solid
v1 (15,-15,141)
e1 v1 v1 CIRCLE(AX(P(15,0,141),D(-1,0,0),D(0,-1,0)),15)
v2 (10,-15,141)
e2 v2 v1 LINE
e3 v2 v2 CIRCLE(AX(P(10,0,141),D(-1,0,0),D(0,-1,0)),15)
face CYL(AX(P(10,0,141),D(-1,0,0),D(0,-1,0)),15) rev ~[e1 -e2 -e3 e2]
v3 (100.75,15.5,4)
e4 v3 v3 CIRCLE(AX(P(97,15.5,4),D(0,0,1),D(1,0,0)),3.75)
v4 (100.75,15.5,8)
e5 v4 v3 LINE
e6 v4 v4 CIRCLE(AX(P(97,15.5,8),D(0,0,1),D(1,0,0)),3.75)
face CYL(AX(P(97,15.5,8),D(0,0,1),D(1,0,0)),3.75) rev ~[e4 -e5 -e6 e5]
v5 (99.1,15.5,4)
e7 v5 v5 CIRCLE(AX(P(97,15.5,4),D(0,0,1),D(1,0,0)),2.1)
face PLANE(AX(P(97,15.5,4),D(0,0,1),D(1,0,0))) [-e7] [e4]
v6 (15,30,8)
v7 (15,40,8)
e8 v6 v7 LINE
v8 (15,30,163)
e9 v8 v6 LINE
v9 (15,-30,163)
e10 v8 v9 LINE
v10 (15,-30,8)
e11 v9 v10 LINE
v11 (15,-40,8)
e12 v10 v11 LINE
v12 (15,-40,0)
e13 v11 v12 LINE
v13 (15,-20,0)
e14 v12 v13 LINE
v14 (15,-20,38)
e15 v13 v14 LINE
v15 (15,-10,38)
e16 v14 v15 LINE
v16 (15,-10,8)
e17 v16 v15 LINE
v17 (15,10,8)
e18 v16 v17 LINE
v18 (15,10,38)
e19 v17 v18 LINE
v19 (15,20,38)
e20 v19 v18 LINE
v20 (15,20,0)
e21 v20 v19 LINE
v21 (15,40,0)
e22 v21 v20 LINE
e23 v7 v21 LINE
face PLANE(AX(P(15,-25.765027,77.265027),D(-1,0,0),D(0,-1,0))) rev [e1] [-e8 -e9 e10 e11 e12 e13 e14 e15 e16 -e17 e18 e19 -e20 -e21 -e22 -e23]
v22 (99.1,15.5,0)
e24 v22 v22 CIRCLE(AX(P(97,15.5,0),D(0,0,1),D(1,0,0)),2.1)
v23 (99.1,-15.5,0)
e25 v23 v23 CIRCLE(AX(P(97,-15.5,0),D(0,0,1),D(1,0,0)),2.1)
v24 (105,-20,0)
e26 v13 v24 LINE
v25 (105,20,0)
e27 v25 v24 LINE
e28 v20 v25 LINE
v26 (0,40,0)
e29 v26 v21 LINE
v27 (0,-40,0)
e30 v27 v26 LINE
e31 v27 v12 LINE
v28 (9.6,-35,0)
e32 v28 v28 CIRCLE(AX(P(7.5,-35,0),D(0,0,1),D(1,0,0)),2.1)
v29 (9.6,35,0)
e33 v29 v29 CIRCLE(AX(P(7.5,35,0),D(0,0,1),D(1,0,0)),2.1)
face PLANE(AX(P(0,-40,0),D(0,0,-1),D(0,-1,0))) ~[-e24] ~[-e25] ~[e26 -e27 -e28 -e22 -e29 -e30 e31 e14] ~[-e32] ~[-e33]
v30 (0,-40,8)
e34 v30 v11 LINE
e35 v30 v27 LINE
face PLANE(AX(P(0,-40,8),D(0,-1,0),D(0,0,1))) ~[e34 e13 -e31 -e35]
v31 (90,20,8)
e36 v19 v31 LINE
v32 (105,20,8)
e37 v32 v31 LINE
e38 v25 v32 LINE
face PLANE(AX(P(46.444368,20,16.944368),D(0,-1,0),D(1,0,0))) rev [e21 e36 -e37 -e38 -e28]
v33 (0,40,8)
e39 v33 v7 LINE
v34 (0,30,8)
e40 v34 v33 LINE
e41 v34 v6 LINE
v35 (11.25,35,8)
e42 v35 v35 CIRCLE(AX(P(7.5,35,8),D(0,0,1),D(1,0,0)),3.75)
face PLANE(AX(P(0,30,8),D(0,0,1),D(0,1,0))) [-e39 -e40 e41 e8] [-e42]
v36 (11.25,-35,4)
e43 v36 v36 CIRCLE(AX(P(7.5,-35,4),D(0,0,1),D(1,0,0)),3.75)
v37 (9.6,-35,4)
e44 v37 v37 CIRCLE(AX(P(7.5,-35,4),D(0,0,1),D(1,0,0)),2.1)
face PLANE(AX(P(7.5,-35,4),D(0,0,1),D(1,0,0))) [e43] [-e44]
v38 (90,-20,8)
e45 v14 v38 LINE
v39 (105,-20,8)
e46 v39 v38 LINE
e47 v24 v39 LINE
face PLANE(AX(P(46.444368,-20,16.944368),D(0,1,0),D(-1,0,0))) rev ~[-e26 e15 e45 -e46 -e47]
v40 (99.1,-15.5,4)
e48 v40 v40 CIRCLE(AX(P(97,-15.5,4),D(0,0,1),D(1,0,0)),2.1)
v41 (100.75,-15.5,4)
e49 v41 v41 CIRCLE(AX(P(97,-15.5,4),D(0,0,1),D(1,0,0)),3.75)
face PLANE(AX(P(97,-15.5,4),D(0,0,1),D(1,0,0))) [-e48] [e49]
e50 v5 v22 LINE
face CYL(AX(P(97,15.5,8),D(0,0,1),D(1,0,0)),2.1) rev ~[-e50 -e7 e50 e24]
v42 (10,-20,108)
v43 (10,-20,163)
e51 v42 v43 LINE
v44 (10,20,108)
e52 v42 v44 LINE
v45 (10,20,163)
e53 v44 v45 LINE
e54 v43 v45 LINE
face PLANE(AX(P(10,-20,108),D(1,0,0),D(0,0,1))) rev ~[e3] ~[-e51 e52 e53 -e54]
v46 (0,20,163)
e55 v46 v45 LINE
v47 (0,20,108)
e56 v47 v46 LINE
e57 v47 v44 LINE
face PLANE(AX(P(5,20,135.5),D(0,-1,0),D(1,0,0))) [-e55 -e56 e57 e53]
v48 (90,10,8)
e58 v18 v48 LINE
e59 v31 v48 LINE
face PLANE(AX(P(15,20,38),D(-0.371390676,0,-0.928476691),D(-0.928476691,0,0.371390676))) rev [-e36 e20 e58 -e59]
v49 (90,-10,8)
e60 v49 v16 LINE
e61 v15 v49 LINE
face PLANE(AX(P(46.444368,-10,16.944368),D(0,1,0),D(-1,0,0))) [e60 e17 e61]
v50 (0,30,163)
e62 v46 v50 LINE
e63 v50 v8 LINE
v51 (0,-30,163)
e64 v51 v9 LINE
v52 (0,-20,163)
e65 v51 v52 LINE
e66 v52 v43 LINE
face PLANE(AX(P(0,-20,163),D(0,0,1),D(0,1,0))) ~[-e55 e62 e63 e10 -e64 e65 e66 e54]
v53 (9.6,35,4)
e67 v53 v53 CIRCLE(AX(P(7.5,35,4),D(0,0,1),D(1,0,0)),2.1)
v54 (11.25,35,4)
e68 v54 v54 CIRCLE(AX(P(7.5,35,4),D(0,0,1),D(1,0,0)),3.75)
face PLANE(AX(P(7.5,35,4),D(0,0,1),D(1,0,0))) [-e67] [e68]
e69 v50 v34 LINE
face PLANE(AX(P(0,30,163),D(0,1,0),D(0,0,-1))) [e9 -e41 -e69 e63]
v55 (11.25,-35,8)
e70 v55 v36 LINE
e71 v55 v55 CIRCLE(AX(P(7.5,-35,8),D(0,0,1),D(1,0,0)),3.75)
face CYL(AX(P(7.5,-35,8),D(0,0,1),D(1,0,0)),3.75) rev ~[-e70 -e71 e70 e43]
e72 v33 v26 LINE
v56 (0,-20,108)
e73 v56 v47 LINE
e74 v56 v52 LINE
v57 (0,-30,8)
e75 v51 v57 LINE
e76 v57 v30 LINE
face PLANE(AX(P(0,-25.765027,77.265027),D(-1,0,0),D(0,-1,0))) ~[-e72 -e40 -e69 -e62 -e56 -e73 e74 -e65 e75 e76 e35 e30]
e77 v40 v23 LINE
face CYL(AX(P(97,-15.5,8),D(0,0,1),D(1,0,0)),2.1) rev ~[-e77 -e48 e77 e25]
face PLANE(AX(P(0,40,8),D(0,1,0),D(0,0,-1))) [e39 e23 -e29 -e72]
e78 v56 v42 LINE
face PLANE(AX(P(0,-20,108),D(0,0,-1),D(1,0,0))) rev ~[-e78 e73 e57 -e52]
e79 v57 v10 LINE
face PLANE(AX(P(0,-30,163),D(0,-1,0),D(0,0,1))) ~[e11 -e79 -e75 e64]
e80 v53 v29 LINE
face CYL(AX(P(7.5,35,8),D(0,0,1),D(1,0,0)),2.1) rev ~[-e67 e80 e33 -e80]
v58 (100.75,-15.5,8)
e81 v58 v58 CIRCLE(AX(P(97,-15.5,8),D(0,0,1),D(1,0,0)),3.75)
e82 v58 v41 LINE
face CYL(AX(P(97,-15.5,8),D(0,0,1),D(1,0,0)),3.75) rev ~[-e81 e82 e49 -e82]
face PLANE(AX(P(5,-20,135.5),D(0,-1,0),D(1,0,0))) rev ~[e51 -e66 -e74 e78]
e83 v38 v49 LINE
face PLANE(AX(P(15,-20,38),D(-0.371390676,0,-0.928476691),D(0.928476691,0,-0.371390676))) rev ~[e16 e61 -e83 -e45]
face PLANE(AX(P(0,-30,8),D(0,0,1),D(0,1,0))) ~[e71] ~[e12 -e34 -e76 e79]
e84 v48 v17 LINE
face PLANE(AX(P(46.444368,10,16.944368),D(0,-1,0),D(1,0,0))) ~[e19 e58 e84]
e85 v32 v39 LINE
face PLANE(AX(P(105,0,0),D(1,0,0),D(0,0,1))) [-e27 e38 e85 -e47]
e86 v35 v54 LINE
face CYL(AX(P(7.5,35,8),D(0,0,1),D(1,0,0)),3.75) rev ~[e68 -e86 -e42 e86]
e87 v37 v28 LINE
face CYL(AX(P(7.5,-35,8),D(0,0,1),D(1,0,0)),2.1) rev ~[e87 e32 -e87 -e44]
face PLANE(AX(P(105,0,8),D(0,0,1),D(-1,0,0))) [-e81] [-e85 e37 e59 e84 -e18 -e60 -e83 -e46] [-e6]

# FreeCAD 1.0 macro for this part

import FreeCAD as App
import Part
import Sketcher

V = App.Vector
Q = App.Units.Quantity


def add_polygon(sketch, points):
    """Adds a closed chain of lines whose ends are joined by coincident constraints."""
    first, n = sketch.GeometryCount, len(points)
    for a, b in zip(points, points[1:] + points[:1]):
        sketch.addGeometry(Part.LineSegment(App.Vector(*a, 0), App.Vector(*b, 0)), False)
    for i in range(n):
        sketch.addConstraint(Sketcher.Constraint("Coincident", first + i, 2, first + (i + 1) % n, 1))

doc = App.newDocument("Part")
body = doc.addObject("PartDesign::Body", "Body")

sketch1 = body.newObject("Sketcher::SketchObject", "Sketch")
sketch1.AttachmentSupport = (doc.getObject("XZ_Plane"), [""])
sketch1.MapMode = "FlatFace"
add_polygon(sketch1, [(0, 163), (0, 0), (105, 0), (105, 8), (15, 8), (15, 163)])
sketch1.addConstraint(Sketcher.Constraint("Vertical", 0))
sketch1.addConstraint(Sketcher.Constraint("Horizontal", 1))
sketch1.addConstraint(Sketcher.Constraint("Vertical", 2))
sketch1.addConstraint(Sketcher.Constraint("Horizontal", 3))
sketch1.addConstraint(Sketcher.Constraint("Vertical", 4))
sketch1.addConstraint(Sketcher.Constraint("Horizontal", 5))
sketch1.addConstraint(Sketcher.Constraint("Coincident", 0, 2, -1, 1))
sketch1.addConstraint(Sketcher.Constraint("DistanceX", 1, 1, 1, 2, Q("105 mm")))
sketch1.addConstraint(Sketcher.Constraint("DistanceX", 3, 2, 3, 1, Q("90 mm")))
sketch1.addConstraint(Sketcher.Constraint("DistanceY", 0, 2, 0, 1, Q("163 mm")))
sketch1.addConstraint(Sketcher.Constraint("DistanceY", 2, 1, 2, 2, Q("8 mm")))
pad1 = body.newObject("PartDesign::Pad", "Pad")
pad1.Profile = sketch1
pad1.Length = 40
pad1.Midplane = True

sketch2 = body.newObject("Sketcher::SketchObject", "Sketch001")
sketch2.AttachmentSupport = (doc.getObject("XZ_Plane"), [""])
sketch2.MapMode = "FlatFace"
sketch2.AttachmentOffset = App.Placement(V(0, 0, 20), App.Rotation())
add_polygon(sketch2, [(90, 8), (15, 38), (15, 8)])
sketch2.addConstraint(Sketcher.Constraint("Vertical", 1))
sketch2.addConstraint(Sketcher.Constraint("Horizontal", 2))
sketch2.addConstraint(Sketcher.Constraint("DistanceX", 2, 1, 2, 2, Q("75 mm")))
sketch2.addConstraint(Sketcher.Constraint("DistanceY", 1, 2, 1, 1, Q("30 mm")))
sketch2.addConstraint(Sketcher.Constraint("DistanceX", -1, 1, 0, 2, Q("15 mm")))
sketch2.addConstraint(Sketcher.Constraint("DistanceY", -1, 1, 0, 2, Q("38 mm")))
pad2 = body.newObject("PartDesign::Pad", "Pad001")
pad2.Profile = sketch2
pad2.Length = 10
pad2.Reversed = True
doc.recompute()

mirrored = body.newObject("PartDesign::Mirrored", "Mirrored")
mirrored.Originals = [pad2]
mirrored.MirrorPlane = (doc.getObject("XZ_Plane"), [""])
body.Tip = mirrored

sketch3 = body.newObject("Sketcher::SketchObject", "Sketch002")
sketch3.AttachmentSupport = (doc.getObject("YZ_Plane"), [""])
sketch3.MapMode = "FlatFace"
add_polygon(sketch3, [(40, 0), (20, 0), (20, 163), (30, 163), (30, 8), (40, 8)])
sketch3.addConstraint(Sketcher.Constraint("Horizontal", 0))
sketch3.addConstraint(Sketcher.Constraint("Vertical", 1))
sketch3.addConstraint(Sketcher.Constraint("Horizontal", 2))
sketch3.addConstraint(Sketcher.Constraint("Vertical", 3))
sketch3.addConstraint(Sketcher.Constraint("Horizontal", 4))
sketch3.addConstraint(Sketcher.Constraint("Vertical", 5))
sketch3.addConstraint(Sketcher.Constraint("PointOnObject", 0, 2, -1))
sketch3.addConstraint(Sketcher.Constraint("Equal", 2, 4))
sketch3.addConstraint(Sketcher.Constraint("DistanceX", 0, 2, 0, 1, Q("20 mm")))
sketch3.addConstraint(Sketcher.Constraint("DistanceY", 1, 1, 1, 2, Q("163 mm")))
sketch3.addConstraint(Sketcher.Constraint("DistanceY", 3, 2, 3, 1, Q("155 mm")))
sketch3.addConstraint(Sketcher.Constraint("DistanceX", -1, 1, 0, 2, Q("20 mm")))
pad3 = body.newObject("PartDesign::Pad", "Pad002")
pad3.Profile = sketch3
pad3.Length = 15
doc.recompute()

mirrored2 = body.newObject("PartDesign::Mirrored", "Mirrored001")
mirrored2.Originals = [pad3]
mirrored2.MirrorPlane = (doc.getObject("XZ_Plane"), [""])
body.Tip = mirrored2

sketch4 = body.newObject("Sketcher::SketchObject", "Sketch003")
sketch4.AttachmentSupport = (doc.getObject("XY_Plane"), [""])
sketch4.MapMode = "FlatFace"
sketch4.AttachmentOffset = App.Placement(V(0, 0, 8), App.Rotation())
sketch4.addGeometry(Part.Circle(V(7.5, 35, 0), V(0, 0, 1), 2.1), False)
sketch4.addGeometry(Part.Circle(V(7.5, -35, 0), V(0, 0, 1), 2.1), False)
sketch4.addGeometry(Part.Circle(V(97, 15.5, 0), V(0, 0, 1), 2.1), False)
sketch4.addGeometry(Part.Circle(V(97, -15.5, 0), V(0, 0, 1), 2.1), False)
sketch4.addConstraint(Sketcher.Constraint("Equal", 0, 1))
sketch4.addConstraint(Sketcher.Constraint("Equal", 1, 2))
sketch4.addConstraint(Sketcher.Constraint("Equal", 2, 3))
sketch4.addConstraint(Sketcher.Constraint("Symmetric", 0, 3, 1, 3, -1))
sketch4.addConstraint(Sketcher.Constraint("Symmetric", 2, 3, 3, 3, -1))
sketch4.addConstraint(Sketcher.Constraint("Diameter", 0, Q("4.2 mm")))
sketch4.addConstraint(Sketcher.Constraint("DistanceY", -1, 1, 0, 3, Q("35 mm")))
sketch4.addConstraint(Sketcher.Constraint("DistanceX", -1, 1, 2, 3, Q("97 mm")))
sketch4.addConstraint(Sketcher.Constraint("DistanceY", 3, 3, 2, 3, Q("31 mm")))
sketch4.addConstraint(Sketcher.Constraint("DistanceX", -1, 1, 0, 3, Q("7.5 mm")))
pocket1 = body.newObject("PartDesign::Pocket", "Pocket")
pocket1.Profile = sketch4
pocket1.Type = "ThroughAll"

sketch5 = body.newObject("Sketcher::SketchObject", "Sketch004")
sketch5.AttachmentSupport = (doc.getObject("XY_Plane"), [""])
sketch5.MapMode = "FlatFace"
sketch5.AttachmentOffset = App.Placement(V(0, 0, 8), App.Rotation())
sketch5.addGeometry(Part.Circle(V(7.5, 35, 0), V(0, 0, 1), 3.8), False)
sketch5.addGeometry(Part.Circle(V(97, 15.5, 0), V(0, 0, 1), 3.8), False)
sketch5.addGeometry(Part.Circle(V(97, -15.5, 0), V(0, 0, 1), 3.8), False)
sketch5.addGeometry(Part.Circle(V(7.5, -35, 0), V(0, 0, 1), 3.8), False)
sketch5.addConstraint(Sketcher.Constraint("Equal", 0, 1))
sketch5.addConstraint(Sketcher.Constraint("Equal", 1, 2))
sketch5.addConstraint(Sketcher.Constraint("Equal", 2, 3))
sketch5.addConstraint(Sketcher.Constraint("Symmetric", 1, 3, 2, 3, -1))
sketch5.addConstraint(Sketcher.Constraint("Symmetric", 0, 3, 3, 3, -1))
sketch5.addConstraint(Sketcher.Constraint("Diameter", 0, Q("7.5 mm")))
sketch5.addConstraint(Sketcher.Constraint("DistanceY", -1, 1, 0, 3, Q("35 mm")))
sketch5.addConstraint(Sketcher.Constraint("DistanceX", -1, 1, 1, 3, Q("97 mm")))
sketch5.addConstraint(Sketcher.Constraint("DistanceY", 2, 3, 1, 3, Q("31 mm")))
sketch5.addConstraint(Sketcher.Constraint("DistanceX", -1, 1, 0, 3, Q("7.5 mm")))
pocket2 = body.newObject("PartDesign::Pocket", "Pocket001")
pocket2.Profile = sketch5
pocket2.Length = 4

sketch6 = body.newObject("Sketcher::SketchObject", "Sketch005")
sketch6.AttachmentSupport = (doc.getObject("XZ_Plane"), [""])
sketch6.MapMode = "FlatFace"
sketch6.AttachmentOffset = App.Placement(V(0, 0, 20), App.Rotation())
add_polygon(sketch6, [(0, 163), (0, 108), (10, 108), (10, 163)])
sketch6.addConstraint(Sketcher.Constraint("Vertical", 0))
sketch6.addConstraint(Sketcher.Constraint("Horizontal", 1))
sketch6.addConstraint(Sketcher.Constraint("Vertical", 2))
sketch6.addConstraint(Sketcher.Constraint("Horizontal", 3))
sketch6.addConstraint(Sketcher.Constraint("PointOnObject", 0, 2, -2))
sketch6.addConstraint(Sketcher.Constraint("DistanceX", 1, 1, 1, 2, Q("10 mm")))
sketch6.addConstraint(Sketcher.Constraint("DistanceY", 0, 2, 0, 1, Q("55 mm")))
sketch6.addConstraint(Sketcher.Constraint("DistanceY", -1, 1, 0, 2, Q("108 mm")))
pocket3 = body.newObject("PartDesign::Pocket", "Pocket002")
pocket3.Profile = sketch6
pocket3.Length = 40

sketch7 = body.newObject("Sketcher::SketchObject", "Sketch006")
sketch7.AttachmentSupport = (doc.getObject("YZ_Plane"), [""])
sketch7.MapMode = "FlatFace"
sketch7.AttachmentOffset = App.Placement(V(0, 0, 10), App.Rotation())
sketch7.addGeometry(Part.Circle(V(0, 141, 0), V(0, 0, 1), 15), False)
sketch7.addConstraint(Sketcher.Constraint("PointOnObject", 0, 3, -2))
sketch7.addConstraint(Sketcher.Constraint("Diameter", 0, Q("30 mm")))
sketch7.addConstraint(Sketcher.Constraint("DistanceY", -1, 1, 0, 3, Q("141 mm")))
pocket4 = body.newObject("PartDesign::Pocket", "Pocket003")
pocket4.Profile = sketch7
pocket4.Type = "ThroughAll"
pocket4.Reversed = True

doc.recompute()
